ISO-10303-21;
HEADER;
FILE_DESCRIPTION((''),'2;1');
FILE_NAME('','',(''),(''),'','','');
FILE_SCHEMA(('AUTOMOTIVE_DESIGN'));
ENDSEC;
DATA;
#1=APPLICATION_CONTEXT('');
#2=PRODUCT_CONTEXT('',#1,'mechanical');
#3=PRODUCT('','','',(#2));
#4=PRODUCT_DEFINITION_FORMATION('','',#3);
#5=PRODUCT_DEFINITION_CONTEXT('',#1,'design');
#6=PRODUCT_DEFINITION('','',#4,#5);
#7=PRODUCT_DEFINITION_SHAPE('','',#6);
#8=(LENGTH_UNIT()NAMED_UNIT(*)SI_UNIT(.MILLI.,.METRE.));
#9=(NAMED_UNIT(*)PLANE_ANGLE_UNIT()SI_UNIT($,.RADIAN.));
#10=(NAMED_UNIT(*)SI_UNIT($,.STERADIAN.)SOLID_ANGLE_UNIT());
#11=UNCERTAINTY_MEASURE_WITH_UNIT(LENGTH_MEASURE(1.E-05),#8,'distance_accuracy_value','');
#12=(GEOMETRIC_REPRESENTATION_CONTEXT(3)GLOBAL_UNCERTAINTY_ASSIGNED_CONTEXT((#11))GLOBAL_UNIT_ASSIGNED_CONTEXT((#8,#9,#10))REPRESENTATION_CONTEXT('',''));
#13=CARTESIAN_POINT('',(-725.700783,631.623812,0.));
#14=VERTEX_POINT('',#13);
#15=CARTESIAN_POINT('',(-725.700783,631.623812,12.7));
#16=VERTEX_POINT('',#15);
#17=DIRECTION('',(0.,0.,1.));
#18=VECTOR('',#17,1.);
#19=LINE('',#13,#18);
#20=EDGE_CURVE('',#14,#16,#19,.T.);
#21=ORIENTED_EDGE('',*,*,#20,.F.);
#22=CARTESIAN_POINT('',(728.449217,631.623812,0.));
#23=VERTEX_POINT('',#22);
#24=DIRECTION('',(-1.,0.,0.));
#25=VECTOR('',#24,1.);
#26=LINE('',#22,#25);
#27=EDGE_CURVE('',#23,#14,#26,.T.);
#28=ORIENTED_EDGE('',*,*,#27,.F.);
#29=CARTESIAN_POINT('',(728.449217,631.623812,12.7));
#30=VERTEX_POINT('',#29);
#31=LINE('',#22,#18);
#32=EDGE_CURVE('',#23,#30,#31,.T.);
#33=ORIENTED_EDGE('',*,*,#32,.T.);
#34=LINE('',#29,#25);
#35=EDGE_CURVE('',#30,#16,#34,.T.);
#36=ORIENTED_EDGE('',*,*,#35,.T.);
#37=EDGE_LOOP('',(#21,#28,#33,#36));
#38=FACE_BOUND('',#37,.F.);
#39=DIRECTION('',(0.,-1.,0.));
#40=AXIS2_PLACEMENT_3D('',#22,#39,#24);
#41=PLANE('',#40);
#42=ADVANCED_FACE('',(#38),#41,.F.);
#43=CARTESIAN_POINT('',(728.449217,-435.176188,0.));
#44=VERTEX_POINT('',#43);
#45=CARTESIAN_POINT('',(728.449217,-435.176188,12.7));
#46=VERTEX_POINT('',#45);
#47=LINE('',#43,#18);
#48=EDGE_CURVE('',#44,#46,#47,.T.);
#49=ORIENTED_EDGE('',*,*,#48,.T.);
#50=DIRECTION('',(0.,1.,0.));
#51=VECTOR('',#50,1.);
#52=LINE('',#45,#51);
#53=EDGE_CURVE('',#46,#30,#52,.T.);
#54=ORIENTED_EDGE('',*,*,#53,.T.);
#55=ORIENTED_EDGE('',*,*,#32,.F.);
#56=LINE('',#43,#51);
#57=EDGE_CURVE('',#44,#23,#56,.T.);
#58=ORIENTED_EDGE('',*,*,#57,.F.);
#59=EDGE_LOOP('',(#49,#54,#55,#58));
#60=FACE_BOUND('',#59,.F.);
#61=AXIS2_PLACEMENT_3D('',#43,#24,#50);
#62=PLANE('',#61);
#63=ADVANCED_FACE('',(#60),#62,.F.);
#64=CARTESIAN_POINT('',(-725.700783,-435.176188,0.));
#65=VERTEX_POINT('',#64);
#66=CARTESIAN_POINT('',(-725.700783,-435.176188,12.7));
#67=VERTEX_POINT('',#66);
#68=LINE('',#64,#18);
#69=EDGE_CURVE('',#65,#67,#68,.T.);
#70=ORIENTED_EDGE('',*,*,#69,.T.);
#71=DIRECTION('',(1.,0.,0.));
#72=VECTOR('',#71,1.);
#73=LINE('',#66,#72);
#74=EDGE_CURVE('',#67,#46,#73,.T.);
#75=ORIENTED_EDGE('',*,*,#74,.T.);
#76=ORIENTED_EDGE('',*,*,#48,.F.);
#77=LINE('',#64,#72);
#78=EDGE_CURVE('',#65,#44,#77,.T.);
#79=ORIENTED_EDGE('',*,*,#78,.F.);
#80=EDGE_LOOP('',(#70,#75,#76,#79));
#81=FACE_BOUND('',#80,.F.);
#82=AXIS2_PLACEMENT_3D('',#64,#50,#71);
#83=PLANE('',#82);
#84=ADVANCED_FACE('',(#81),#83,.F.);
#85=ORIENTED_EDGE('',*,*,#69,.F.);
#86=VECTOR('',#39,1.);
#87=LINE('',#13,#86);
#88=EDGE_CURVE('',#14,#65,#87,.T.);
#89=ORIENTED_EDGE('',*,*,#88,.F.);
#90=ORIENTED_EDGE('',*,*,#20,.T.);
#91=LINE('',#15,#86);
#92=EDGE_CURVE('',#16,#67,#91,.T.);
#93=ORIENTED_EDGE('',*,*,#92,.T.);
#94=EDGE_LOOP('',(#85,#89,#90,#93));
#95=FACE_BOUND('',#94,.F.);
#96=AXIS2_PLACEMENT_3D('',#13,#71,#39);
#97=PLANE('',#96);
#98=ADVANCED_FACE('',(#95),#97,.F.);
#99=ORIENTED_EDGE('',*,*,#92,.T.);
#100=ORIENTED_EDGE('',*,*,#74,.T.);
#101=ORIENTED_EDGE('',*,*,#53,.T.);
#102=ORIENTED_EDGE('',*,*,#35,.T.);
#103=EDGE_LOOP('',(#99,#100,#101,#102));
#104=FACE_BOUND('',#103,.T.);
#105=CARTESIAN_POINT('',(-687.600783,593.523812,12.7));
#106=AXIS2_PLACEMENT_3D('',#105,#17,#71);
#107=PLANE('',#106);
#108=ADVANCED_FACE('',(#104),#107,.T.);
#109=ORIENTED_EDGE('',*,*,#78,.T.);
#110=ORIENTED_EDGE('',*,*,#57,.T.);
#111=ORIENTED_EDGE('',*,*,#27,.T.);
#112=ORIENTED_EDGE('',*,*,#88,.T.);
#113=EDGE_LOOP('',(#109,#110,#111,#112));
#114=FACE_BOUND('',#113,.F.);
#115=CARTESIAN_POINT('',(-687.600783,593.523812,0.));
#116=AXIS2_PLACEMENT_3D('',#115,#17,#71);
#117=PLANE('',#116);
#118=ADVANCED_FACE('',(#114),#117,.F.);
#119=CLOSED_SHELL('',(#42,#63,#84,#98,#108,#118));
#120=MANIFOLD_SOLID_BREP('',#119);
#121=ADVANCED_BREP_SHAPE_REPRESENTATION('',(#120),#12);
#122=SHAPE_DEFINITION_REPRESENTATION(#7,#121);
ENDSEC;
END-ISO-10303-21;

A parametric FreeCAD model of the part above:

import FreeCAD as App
import Part
import Sketcher

V = App.Vector
Q = App.Units.Quantity


def add_polygon(sketch, points):
    """Adds a closed chain of lines whose ends are joined by coincident constraints."""
    first, n = sketch.GeometryCount, len(points)
    for a, b in zip(points, points[1:] + points[:1]):
        sketch.addGeometry(Part.LineSegment(App.Vector(*a, 0), App.Vector(*b, 0)), False)
    for i in range(n):
        sketch.addConstraint(Sketcher.Constraint("Coincident", first + i, 2, first + (i + 1) % n, 1))

doc = App.newDocument("Part")
params = doc.addObject("Spreadsheet::Sheet", "Params")
for row, (alias, value) in enumerate([
    ("sketch1_height", "42 in"),
    ("sketch1_width", "57.25 in"),
    ("pad1_length", "0.5 in"),
], start=1):
    params.set(f"A{row}", alias)
    params.set(f"B{row}", "=" + value)
    params.setAlias(f"B{row}", alias)

body = doc.addObject("PartDesign::Body", "Body")

# Sketch on XY plane
sketch1 = body.newObject("Sketcher::SketchObject", "Sketch")
sketch1.AttachmentSupport = (doc.getObject("XY_Plane"), [""])
sketch1.MapMode = "FlatFace"
add_polygon(sketch1, [(728, -435), (728, 632), (-726, 632), (-726, -435)])  # lines 0-3
sketch1.addConstraint([
    Sketcher.Constraint("Vertical", 0),
    Sketcher.Constraint("Horizontal", 1),
    Sketcher.Constraint("Vertical", 2),
    Sketcher.Constraint("Horizontal", 3),
    Sketcher.Constraint("DistanceY", 0, 1, 0, 2, Q("42 in")),
    Sketcher.Constraint("DistanceX", 1, 2, 1, 1, Q("57.25 in")),
    Sketcher.Constraint("DistanceY", -1, 1, 0, 2, Q("631.623812 mm")),
    Sketcher.Constraint("DistanceX", -1, 1, 0, 2, Q("728.449217 mm")),
])
sketch1.setExpression("Constraints[8]", "Params.sketch1_height")
sketch1.setExpression("Constraints[9]", "Params.sketch1_width")
pad1 = body.newObject("PartDesign::Pad", "Pad")
pad1.Profile = sketch1
pad1.setExpression("Length", "Params.pad1_length")

doc.recompute()
